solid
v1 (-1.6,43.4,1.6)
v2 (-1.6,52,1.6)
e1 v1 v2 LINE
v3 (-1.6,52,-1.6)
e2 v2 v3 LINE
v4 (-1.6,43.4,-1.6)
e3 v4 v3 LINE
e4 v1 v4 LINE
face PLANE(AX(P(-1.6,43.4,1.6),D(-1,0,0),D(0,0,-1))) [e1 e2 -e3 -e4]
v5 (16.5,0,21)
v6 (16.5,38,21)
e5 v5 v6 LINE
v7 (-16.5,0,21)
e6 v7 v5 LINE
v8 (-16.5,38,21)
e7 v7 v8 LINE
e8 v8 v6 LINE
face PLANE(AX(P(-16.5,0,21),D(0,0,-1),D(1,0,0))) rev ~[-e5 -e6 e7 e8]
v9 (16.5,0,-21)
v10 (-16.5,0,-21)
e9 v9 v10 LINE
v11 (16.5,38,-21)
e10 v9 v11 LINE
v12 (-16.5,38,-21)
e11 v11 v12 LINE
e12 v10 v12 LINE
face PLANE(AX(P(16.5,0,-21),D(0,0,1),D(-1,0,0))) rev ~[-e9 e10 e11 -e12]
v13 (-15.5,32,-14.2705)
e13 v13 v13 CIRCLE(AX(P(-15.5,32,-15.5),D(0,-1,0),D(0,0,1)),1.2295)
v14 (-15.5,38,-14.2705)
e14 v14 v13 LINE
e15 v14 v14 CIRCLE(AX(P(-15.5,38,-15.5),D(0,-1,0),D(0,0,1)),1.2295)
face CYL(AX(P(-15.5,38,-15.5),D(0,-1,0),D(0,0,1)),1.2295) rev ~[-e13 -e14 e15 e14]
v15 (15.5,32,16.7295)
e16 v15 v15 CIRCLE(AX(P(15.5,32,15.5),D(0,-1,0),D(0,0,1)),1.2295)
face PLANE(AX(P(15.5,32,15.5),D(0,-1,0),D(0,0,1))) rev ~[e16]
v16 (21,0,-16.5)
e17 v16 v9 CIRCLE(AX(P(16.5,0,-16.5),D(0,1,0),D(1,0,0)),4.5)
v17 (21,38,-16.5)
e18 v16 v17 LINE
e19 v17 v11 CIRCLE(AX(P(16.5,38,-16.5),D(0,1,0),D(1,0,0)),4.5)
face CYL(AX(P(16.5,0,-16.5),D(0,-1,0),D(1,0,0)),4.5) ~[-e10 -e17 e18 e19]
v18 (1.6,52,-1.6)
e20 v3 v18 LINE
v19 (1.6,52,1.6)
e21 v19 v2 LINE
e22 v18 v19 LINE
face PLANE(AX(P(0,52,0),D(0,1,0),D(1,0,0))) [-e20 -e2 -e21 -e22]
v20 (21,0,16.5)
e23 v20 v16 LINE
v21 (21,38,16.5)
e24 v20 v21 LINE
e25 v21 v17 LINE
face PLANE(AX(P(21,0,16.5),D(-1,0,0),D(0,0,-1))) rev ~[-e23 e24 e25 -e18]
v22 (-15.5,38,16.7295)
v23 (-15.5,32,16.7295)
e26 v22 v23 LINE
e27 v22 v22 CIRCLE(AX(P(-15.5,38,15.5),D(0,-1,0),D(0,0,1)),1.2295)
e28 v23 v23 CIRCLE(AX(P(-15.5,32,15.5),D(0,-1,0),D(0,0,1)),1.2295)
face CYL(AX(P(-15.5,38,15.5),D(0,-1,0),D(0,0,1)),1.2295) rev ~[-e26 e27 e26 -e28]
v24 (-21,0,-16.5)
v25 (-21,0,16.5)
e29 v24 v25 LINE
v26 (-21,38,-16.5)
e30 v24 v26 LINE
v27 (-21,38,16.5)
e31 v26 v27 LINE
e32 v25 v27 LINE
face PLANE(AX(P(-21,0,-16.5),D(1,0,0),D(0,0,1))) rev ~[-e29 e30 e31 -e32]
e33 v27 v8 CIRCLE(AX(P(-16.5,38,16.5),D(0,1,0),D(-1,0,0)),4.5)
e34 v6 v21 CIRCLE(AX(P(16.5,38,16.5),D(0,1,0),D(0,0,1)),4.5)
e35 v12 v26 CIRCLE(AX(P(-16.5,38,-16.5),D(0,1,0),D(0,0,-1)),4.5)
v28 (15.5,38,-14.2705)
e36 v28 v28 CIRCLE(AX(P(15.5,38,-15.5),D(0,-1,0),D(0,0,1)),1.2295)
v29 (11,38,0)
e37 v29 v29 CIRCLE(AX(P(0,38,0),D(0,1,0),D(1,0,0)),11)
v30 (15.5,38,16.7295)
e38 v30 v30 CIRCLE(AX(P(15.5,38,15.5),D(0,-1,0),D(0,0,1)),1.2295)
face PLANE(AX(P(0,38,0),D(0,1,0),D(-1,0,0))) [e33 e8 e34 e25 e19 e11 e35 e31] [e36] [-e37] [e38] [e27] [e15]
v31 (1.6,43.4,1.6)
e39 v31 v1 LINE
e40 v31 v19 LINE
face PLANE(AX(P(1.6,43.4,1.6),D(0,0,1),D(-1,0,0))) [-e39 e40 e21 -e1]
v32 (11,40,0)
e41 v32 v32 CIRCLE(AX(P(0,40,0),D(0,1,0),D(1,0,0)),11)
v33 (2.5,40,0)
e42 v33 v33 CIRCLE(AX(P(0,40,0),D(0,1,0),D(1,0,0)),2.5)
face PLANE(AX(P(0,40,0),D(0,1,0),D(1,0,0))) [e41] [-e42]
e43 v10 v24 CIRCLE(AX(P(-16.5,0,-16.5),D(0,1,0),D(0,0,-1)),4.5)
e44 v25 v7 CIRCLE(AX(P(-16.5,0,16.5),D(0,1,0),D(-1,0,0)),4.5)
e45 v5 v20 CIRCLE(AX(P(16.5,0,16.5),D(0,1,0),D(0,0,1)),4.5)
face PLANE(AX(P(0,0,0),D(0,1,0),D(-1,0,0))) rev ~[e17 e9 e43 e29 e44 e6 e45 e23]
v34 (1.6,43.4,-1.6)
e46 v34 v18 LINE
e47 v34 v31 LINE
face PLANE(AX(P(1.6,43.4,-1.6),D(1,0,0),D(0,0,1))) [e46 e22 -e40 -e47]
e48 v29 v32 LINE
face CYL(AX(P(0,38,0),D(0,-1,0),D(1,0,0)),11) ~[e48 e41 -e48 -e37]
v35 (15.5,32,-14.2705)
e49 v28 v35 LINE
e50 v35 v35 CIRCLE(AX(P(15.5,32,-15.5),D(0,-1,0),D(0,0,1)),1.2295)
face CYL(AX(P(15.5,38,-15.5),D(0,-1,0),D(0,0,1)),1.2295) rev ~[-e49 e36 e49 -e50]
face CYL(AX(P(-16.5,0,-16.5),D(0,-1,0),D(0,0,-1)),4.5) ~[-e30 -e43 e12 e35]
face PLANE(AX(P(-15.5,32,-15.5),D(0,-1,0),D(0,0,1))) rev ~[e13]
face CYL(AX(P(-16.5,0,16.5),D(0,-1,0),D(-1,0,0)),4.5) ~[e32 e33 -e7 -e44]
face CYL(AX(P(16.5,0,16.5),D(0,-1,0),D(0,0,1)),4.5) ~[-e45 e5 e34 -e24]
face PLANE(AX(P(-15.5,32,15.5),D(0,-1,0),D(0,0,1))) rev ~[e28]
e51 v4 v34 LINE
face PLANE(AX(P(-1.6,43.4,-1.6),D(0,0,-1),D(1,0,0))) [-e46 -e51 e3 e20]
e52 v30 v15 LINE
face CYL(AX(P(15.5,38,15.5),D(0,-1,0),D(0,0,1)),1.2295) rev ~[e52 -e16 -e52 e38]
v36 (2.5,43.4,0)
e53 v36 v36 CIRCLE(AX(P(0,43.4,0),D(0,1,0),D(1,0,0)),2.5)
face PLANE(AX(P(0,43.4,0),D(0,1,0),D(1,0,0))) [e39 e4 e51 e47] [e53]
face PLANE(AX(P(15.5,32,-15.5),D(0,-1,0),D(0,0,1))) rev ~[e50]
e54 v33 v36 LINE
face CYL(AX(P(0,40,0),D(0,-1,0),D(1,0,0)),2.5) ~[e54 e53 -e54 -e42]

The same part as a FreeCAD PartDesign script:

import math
import FreeCAD as App
import Part
import Sketcher


def add_polygon(sketch, points):
    """Adds a closed chain of lines whose ends are joined by coincident constraints."""
    first, n = sketch.GeometryCount, len(points)
    for a, b in zip(points, points[1:] + points[:1]):
        sketch.addGeometry(Part.LineSegment(App.Vector(*a, 0), App.Vector(*b, 0)), False)
    for i in range(n):
        sketch.addConstraint(Sketcher.Constraint("Coincident", first + i, 2, first + (i + 1) % n, 1))

doc = App.newDocument("Part")
body = doc.addObject("PartDesign::Body", "Body")

sketch1 = doc.addObject("Sketcher::SketchObject", "Sketch")
body.addObject(sketch1)
sketch1.AttachmentSupport = (doc.XZ_Plane, [""])
sketch1.MapMode = "FlatFace"
sketch1.addGeometry(Part.ArcOfCircle(Part.Circle(App.Vector(16.5, -16.5, 0), App.Vector(0, 0, 1), 4.5), math.radians(-90), math.radians(0)), False)
sketch1.addGeometry(Part.LineSegment(App.Vector(16.5, -21, 0), App.Vector(-16.5, -21, 0)), False)
sketch1.addGeometry(Part.ArcOfCircle(Part.Circle(App.Vector(-16.5, -16.5, 0), App.Vector(0, 0, 1), 4.5), math.radians(180), math.radians(270)), False)
sketch1.addGeometry(Part.LineSegment(App.Vector(-21, -16.5, 0), App.Vector(-21, 16.5, 0)), False)
sketch1.addGeometry(Part.ArcOfCircle(Part.Circle(App.Vector(-16.5, 16.5, 0), App.Vector(0, 0, 1), 4.5), math.radians(90), math.radians(180)), False)
sketch1.addGeometry(Part.LineSegment(App.Vector(-16.5, 21, 0), App.Vector(16.5, 21, 0)), False)
sketch1.addGeometry(Part.ArcOfCircle(Part.Circle(App.Vector(16.5, 16.5, 0), App.Vector(0, 0, 1), 4.5), math.radians(0), math.radians(90)), False)
sketch1.addGeometry(Part.LineSegment(App.Vector(21, 16.5, 0), App.Vector(21, -16.5, 0)), False)
sketch1.addConstraint(Sketcher.Constraint("Tangent", 0, 1, 1, 1))
sketch1.addConstraint(Sketcher.Constraint("Tangent", 1, 2, 2, 2))
sketch1.addConstraint(Sketcher.Constraint("Tangent", 2, 1, 3, 1))
sketch1.addConstraint(Sketcher.Constraint("Tangent", 3, 2, 4, 2))
sketch1.addConstraint(Sketcher.Constraint("Tangent", 4, 1, 5, 1))
sketch1.addConstraint(Sketcher.Constraint("Tangent", 5, 2, 6, 2))
sketch1.addConstraint(Sketcher.Constraint("Tangent", 6, 1, 7, 1))
sketch1.addConstraint(Sketcher.Constraint("Tangent", 7, 2, 0, 2))
sketch1.addConstraint(Sketcher.Constraint("Horizontal", 1))
sketch1.addConstraint(Sketcher.Constraint("Vertical", 3))
sketch1.addConstraint(Sketcher.Constraint("Horizontal", 5))
sketch1.addConstraint(Sketcher.Constraint("Vertical", 7))
sketch1.addConstraint(Sketcher.Constraint("Equal", 0, 2))
sketch1.addConstraint(Sketcher.Constraint("Equal", 2, 4))
sketch1.addConstraint(Sketcher.Constraint("Equal", 4, 6))
sketch1.addConstraint(Sketcher.Constraint("Symmetric", 0, 3, 4, 3, -1, 1))
sketch1.addConstraint(Sketcher.Constraint("Equal", 5, 3))
sketch1.addConstraint(Sketcher.Constraint("Radius", 0, 4.5))
sketch1.addConstraint(Sketcher.Constraint("DistanceX", 1, 2, 1, 1, 33.0))
pad1 = doc.addObject("PartDesign::Pad", "Pad")
body.addObject(pad1)
pad1.Profile = sketch1
pad1.Length = 38
pad1.Reversed = True

sketch2 = doc.addObject("Sketcher::SketchObject", "Sketch001")
body.addObject(sketch2)
sketch2.AttachmentSupport = (doc.XZ_Plane, [""])
sketch2.MapMode = "FlatFace"
sketch2.AttachmentOffset = App.Placement(App.Vector(0, 0, -38), App.Rotation())
sketch2.addGeometry(Part.Circle(App.Vector(0, 0, 0), App.Vector(0, 0, 1), 11), False)
sketch2.addConstraint(Sketcher.Constraint("Coincident", 0, 3, -1, 1))
sketch2.addConstraint(Sketcher.Constraint("Diameter", 0, 22.0))
pad2 = doc.addObject("PartDesign::Pad", "Pad001")
body.addObject(pad2)
pad2.Profile = sketch2
pad2.Length = 2
pad2.Reversed = True

sketch3 = doc.addObject("Sketcher::SketchObject", "Sketch002")
body.addObject(sketch3)
sketch3.AttachmentSupport = (doc.XZ_Plane, [""])
sketch3.MapMode = "FlatFace"
sketch3.AttachmentOffset = App.Placement(App.Vector(0, 0, -38), App.Rotation())
sketch3.addGeometry(Part.Circle(App.Vector(-15.5, 15.5, 0), App.Vector(0, 0, 1), 1.2), False)
sketch3.addGeometry(Part.Circle(App.Vector(-15.5, -15.5, 0), App.Vector(0, 0, 1), 1.2), False)
sketch3.addGeometry(Part.Circle(App.Vector(15.5, -15.5, 0), App.Vector(0, 0, 1), 1.2), False)
sketch3.addGeometry(Part.Circle(App.Vector(15.5, 15.5, 0), App.Vector(0, 0, 1), 1.2), False)
sketch3.addConstraint(Sketcher.Constraint("Equal", 0, 1))
sketch3.addConstraint(Sketcher.Constraint("Equal", 1, 2))
sketch3.addConstraint(Sketcher.Constraint("Equal", 2, 3))
sketch3.addConstraint(Sketcher.Constraint("Symmetric", 0, 3, 2, 3, -1, 1))
sketch3.addConstraint(Sketcher.Constraint("Symmetric", 1, 3, 3, 3, -1, 1))
sketch3.addConstraint(Sketcher.Constraint("Symmetric", 1, 3, 2, 3, -2))
sketch3.addConstraint(Sketcher.Constraint("Diameter", 0, 2.459))
sketch3.addConstraint(Sketcher.Constraint("DistanceY", 1, 3, 0, 3, 31.0))
sketch3.addConstraint(Sketcher.Constraint("DistanceX", 1, 3, 2, 3, 31.0))
doc.recompute()
hole = doc.addObject("PartDesign::Hole", "Hole")
body.addObject(hole)
hole.Profile = sketch3
hole.ThreadType = "None"
hole.Diameter = 2.459
hole.DepthType = "Dimension"
hole.Depth = 6
hole.DrillPoint = "Flat"
hole.Reversed = True

sketch4 = doc.addObject("Sketcher::SketchObject", "Sketch003")
body.addObject(sketch4)
sketch4.AttachmentSupport = (doc.XZ_Plane, [""])
sketch4.MapMode = "FlatFace"
sketch4.AttachmentOffset = App.Placement(App.Vector(0, 0, -40), App.Rotation())
sketch4.addGeometry(Part.Circle(App.Vector(0, 0, 0), App.Vector(0, 0, 1), 2.5), False)
sketch4.addConstraint(Sketcher.Constraint("Coincident", 0, 3, -1, 1))
sketch4.addConstraint(Sketcher.Constraint("Diameter", 0, 5.0))
pad3 = doc.addObject("PartDesign::Pad", "Pad002")
body.addObject(pad3)
pad3.Profile = sketch4
pad3.Length = 3.4
pad3.Reversed = True

sketch5 = doc.addObject("Sketcher::SketchObject", "Sketch004")
body.addObject(sketch5)
sketch5.AttachmentSupport = (doc.XZ_Plane, [""])
sketch5.MapMode = "FlatFace"
sketch5.AttachmentOffset = App.Placement(App.Vector(0, 0, -43.4), App.Rotation())
add_polygon(sketch5, [(-1.6, 1.6), (1.6, 1.6), (1.6, -1.6), (-1.6, -1.6)])
sketch5.addConstraint(Sketcher.Constraint("Horizontal", 0))
sketch5.addConstraint(Sketcher.Constraint("Vertical", 1))
sketch5.addConstraint(Sketcher.Constraint("Horizontal", 2))
sketch5.addConstraint(Sketcher.Constraint("Vertical", 3))
sketch5.addConstraint(Sketcher.Constraint("Symmetric", 0, 2, 2, 2, -1, 1))
sketch5.addConstraint(Sketcher.Constraint("Equal", 2, 1))
sketch5.addConstraint(Sketcher.Constraint("DistanceX", 0, 1, 0, 2, 3.2))
pad4 = doc.addObject("PartDesign::Pad", "Pad003")
body.addObject(pad4)
pad4.Profile = sketch5
pad4.Length = 8.6
pad4.Reversed = True

doc.recompute()
